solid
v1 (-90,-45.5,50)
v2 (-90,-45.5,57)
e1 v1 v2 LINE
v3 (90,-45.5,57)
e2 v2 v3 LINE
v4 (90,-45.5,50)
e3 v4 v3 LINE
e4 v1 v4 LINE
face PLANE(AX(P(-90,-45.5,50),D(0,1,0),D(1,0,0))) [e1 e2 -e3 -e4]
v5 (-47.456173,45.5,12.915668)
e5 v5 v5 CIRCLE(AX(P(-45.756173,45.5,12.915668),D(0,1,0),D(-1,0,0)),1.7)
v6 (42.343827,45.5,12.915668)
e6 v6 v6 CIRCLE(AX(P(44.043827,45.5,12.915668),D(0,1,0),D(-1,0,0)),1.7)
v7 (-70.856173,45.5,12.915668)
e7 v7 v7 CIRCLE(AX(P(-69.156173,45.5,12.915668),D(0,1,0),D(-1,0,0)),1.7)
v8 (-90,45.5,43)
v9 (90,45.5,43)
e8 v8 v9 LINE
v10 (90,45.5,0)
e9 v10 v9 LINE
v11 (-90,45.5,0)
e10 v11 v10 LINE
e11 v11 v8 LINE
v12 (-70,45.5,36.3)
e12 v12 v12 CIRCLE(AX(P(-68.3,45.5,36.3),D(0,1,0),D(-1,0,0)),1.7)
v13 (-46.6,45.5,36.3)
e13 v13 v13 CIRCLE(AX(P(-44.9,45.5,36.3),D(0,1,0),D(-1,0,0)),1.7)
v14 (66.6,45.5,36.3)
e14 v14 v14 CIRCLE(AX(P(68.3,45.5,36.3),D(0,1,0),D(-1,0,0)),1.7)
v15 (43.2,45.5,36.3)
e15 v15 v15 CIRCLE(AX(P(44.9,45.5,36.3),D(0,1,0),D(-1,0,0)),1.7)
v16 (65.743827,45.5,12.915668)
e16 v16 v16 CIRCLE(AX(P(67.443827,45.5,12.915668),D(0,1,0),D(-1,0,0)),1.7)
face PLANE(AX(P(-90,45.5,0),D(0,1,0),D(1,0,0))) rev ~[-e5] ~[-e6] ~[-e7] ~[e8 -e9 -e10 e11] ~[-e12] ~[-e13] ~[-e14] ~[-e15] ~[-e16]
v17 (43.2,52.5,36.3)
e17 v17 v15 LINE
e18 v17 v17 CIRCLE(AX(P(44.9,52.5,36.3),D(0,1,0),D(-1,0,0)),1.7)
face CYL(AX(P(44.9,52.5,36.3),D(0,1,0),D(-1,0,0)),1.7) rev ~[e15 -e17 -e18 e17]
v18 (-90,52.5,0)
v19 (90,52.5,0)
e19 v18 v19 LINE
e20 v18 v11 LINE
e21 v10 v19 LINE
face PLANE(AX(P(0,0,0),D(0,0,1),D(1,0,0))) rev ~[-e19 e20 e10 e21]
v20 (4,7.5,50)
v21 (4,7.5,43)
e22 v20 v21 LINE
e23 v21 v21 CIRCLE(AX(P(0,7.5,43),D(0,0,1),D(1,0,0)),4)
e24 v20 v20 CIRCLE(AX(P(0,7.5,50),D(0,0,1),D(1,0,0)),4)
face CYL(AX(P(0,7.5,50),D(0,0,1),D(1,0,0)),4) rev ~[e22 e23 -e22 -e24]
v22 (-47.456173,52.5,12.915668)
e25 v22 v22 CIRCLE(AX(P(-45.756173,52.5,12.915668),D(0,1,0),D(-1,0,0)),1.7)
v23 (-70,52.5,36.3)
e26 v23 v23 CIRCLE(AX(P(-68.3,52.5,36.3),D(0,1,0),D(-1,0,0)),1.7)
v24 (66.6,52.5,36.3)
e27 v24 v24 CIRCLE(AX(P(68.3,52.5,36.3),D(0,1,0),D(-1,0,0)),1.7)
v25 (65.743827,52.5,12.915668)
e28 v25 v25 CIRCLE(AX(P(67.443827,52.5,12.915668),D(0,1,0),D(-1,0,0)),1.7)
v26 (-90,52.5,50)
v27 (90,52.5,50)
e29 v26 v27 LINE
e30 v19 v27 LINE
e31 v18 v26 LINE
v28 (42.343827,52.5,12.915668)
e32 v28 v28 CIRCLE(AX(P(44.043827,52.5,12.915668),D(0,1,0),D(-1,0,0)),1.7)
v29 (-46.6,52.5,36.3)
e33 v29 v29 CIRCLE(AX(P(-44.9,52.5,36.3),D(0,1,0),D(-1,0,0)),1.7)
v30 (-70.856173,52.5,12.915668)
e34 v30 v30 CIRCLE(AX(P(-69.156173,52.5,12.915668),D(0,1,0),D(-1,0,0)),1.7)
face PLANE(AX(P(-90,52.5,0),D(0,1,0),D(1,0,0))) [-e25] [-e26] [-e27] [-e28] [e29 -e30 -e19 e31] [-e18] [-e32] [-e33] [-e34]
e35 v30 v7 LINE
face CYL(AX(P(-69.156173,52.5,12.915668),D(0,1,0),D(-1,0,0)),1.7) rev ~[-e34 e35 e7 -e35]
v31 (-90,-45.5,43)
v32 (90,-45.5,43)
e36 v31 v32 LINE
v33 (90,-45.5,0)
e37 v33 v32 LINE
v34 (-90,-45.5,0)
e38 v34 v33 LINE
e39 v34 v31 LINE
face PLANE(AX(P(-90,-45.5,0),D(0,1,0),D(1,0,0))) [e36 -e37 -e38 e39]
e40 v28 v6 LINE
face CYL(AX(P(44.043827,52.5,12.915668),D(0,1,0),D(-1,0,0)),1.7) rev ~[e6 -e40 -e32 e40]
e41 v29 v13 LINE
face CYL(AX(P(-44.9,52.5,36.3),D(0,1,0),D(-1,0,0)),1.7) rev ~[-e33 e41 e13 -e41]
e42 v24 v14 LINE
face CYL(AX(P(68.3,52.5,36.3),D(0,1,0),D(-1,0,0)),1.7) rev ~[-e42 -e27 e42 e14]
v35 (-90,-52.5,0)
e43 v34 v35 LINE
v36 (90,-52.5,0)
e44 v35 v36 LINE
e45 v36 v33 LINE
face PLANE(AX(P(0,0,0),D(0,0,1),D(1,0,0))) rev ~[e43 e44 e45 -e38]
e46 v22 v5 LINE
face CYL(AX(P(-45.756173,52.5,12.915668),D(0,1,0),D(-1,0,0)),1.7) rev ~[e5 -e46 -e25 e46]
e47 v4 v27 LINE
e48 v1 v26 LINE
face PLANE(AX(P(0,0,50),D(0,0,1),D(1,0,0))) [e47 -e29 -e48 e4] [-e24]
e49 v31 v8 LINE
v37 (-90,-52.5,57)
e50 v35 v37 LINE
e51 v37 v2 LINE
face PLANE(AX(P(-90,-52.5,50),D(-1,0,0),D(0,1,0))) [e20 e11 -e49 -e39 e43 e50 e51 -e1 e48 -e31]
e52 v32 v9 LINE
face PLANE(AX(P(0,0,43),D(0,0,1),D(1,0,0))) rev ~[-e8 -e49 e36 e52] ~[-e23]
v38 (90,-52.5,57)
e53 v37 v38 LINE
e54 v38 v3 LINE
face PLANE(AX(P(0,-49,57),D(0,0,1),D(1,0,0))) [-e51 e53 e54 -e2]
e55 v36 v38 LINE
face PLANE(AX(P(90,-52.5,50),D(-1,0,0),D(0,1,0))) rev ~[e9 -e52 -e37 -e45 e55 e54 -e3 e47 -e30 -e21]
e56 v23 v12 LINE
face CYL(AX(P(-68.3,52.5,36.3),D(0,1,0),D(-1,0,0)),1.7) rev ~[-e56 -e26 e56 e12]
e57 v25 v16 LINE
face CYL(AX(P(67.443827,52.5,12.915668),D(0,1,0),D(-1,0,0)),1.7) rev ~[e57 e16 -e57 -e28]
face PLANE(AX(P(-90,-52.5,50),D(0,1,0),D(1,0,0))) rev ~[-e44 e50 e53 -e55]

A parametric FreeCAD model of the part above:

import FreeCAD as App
import Part
import Sketcher
from FreeCAD import Vector
Q = App.Units.Quantity

doc = App.newDocument("Part")
body = doc.addObject("PartDesign::Body", "Body")

# Sketch on XY plane
sketch1 = body.newObject("Sketcher::SketchObject", "Sketch")
sketch1.AttachmentSupport = (doc.getObject("XY_Plane"), [""])
sketch1.MapMode = "FlatFace"
sketch1.addGeometry([
    Part.LineSegment(Vector(-90, 52, 0), Vector(-90, -52, 0)),
    Part.LineSegment(Vector(-90, -52, 0), Vector(90, -52, 0)),
    Part.LineSegment(Vector(90, -52, 0), Vector(90, 52, 0)),
    Part.LineSegment(Vector(90, 52, 0), Vector(-90, 52, 0)),
], False)
sketch1.addConstraint([
    Sketcher.Constraint("Coincident", 0, 2, 1, 1),
    Sketcher.Constraint("Coincident", 1, 2, 2, 1),
    Sketcher.Constraint("Coincident", 2, 2, 3, 1),
    Sketcher.Constraint("Coincident", 3, 2, 0, 1),
    Sketcher.Constraint("Vertical", 0),
    Sketcher.Constraint("Horizontal", 1),
    Sketcher.Constraint("Vertical", 2),
    Sketcher.Constraint("Horizontal", 3),
    Sketcher.Constraint("Symmetric", 0, 2, 2, 2, -1, 1),
    Sketcher.Constraint("DistanceX", 1, 1, 1, 2, Q("180 mm")),
    Sketcher.Constraint("DistanceY", 0, 2, 0, 1, Q("105 mm")),
])
pad1 = body.newObject("PartDesign::Pad", "Pad")
pad1.Profile = sketch1
pad1.Length = 50

# Sketch on XY plane
sketch2 = body.newObject("Sketcher::SketchObject", "Sketch001")
sketch2.AttachmentSupport = (doc.getObject("XY_Plane"), [""])
sketch2.MapMode = "FlatFace"
sketch2.addGeometry([
    Part.LineSegment(Vector(-90, 46, 0), Vector(-90, -46, 0)),
    Part.LineSegment(Vector(-90, -46, 0), Vector(90, -46, 0)),
    Part.LineSegment(Vector(90, -46, 0), Vector(90, 46, 0)),
    Part.LineSegment(Vector(90, 46, 0), Vector(-90, 46, 0)),
], False)
sketch2.addConstraint([
    Sketcher.Constraint("Coincident", 0, 2, 1, 1),
    Sketcher.Constraint("Coincident", 1, 2, 2, 1),
    Sketcher.Constraint("Coincident", 2, 2, 3, 1),
    Sketcher.Constraint("Coincident", 3, 2, 0, 1),
    Sketcher.Constraint("Vertical", 0),
    Sketcher.Constraint("Horizontal", 1),
    Sketcher.Constraint("Vertical", 2),
    Sketcher.Constraint("Horizontal", 3),
    Sketcher.Constraint("Symmetric", 0, 2, 2, 2, -1, 1),
    Sketcher.Constraint("DistanceX", 1, 1, 1, 2, Q("180 mm")),
    Sketcher.Constraint("DistanceY", 0, 2, 0, 1, Q("91 mm")),
])
pocket1 = body.newObject("PartDesign::Pocket", "Pocket")
pocket1.Profile = sketch2
pocket1.Type = "TwoLengths"
pocket1.Length = 1
pocket1.Length2 = 43

# Sketch on XY plane
sketch3 = body.newObject("Sketcher::SketchObject", "Sketch002")
sketch3.AttachmentSupport = (doc.getObject("XY_Plane"), [""])
sketch3.MapMode = "FlatFace"
sketch3.AttachmentOffset = App.Placement(Vector(0, 0, 50), App.Rotation())
sketch3.addGeometry(Part.Circle(Vector(0, 7.5, 0), Vector(0, 0, 1), 4), False)
sketch3.addConstraint([
    Sketcher.Constraint("PointOnObject", 0, 3, -2),
    Sketcher.Constraint("Diameter", 0, Q("8 mm")),
    Sketcher.Constraint("DistanceY", -1, 1, 0, 3, Q("7.5 mm")),
])
pocket2 = body.newObject("PartDesign::Pocket", "Pocket001")
pocket2.Profile = sketch3
pocket2.Type = "ThroughAll"

# Sketch on XY plane
sketch4 = body.newObject("Sketcher::SketchObject", "Sketch003")
sketch4.AttachmentSupport = (doc.getObject("XY_Plane"), [""])
sketch4.MapMode = "FlatFace"
sketch4.AttachmentOffset = App.Placement(Vector(0, 0, 50), App.Rotation())
sketch4.addGeometry([
    Part.LineSegment(Vector(-90, -46, 0), Vector(-90, -52, 0)),
    Part.LineSegment(Vector(-90, -52, 0), Vector(90, -52, 0)),
    Part.LineSegment(Vector(90, -52, 0), Vector(90, -46, 0)),
    Part.LineSegment(Vector(90, -46, 0), Vector(-90, -46, 0)),
], False)
sketch4.addConstraint([
    Sketcher.Constraint("Coincident", 0, 2, 1, 1),
    Sketcher.Constraint("Coincident", 1, 2, 2, 1),
    Sketcher.Constraint("Coincident", 2, 2, 3, 1),
    Sketcher.Constraint("Coincident", 3, 2, 0, 1),
    Sketcher.Constraint("Vertical", 0),
    Sketcher.Constraint("Horizontal", 1),
    Sketcher.Constraint("Vertical", 2),
    Sketcher.Constraint("Horizontal", 3),
    Sketcher.Constraint("DistanceX", 1, 1, 1, 2, Q("180 mm")),
    Sketcher.Constraint("DistanceY", 0, 2, 0, 1, Q("7 mm")),
    Sketcher.Constraint("DistanceX", 0, 2, -1, 1, Q("90 mm")),
    Sketcher.Constraint("DistanceY", 0, 2, -1, 1, Q("52.5 mm")),
])
pad2 = body.newObject("PartDesign::Pad", "Pad001")
pad2.Profile = sketch4
pad2.Length = 7

# Sketch on XZ plane
sketch5 = body.newObject("Sketcher::SketchObject", "Sketch004")
sketch5.AttachmentSupport = (doc.getObject("XZ_Plane"), [""])
sketch5.MapMode = "FlatFace"
sketch5.AttachmentOffset = App.Placement(Vector(0, 0, -52.5), App.Rotation())
sketch5.addGeometry([
    Part.Circle(Vector(68.3, 36.3, 0), Vector(0, 0, 1), 1.7),  # 0
    Part.Circle(Vector(67.4, 12.9, 0), Vector(0, 0, 1), 1.7),  # 1
    Part.Circle(Vector(44.9, 36.3, 0), Vector(0, 0, 1), 1.7),  # 2
    Part.Circle(Vector(44, 12.9, 0), Vector(0, 0, 1), 1.7),  # 3
    Part.Circle(Vector(-44.9, 36.3, 0), Vector(0, 0, 1), 1.7),  # 4
    Part.Circle(Vector(-45.8, 12.9, 0), Vector(0, 0, 1), 1.7),  # 5
    Part.Circle(Vector(-68.3, 36.3, 0), Vector(0, 0, 1), 1.7),  # 6
    Part.Circle(Vector(-69.2, 12.9, 0), Vector(0, 0, 1), 1.7),  # 7
], False)
sketch5.addConstraint([
    Sketcher.Constraint("Equal", 0, 1),
    Sketcher.Constraint("Equal", 1, 2),
    Sketcher.Constraint("Equal", 2, 3),
    Sketcher.Constraint("Equal", 3, 4),
    Sketcher.Constraint("Equal", 4, 5),
    Sketcher.Constraint("Equal", 5, 6),
    Sketcher.Constraint("Equal", 6, 7),
    Sketcher.Constraint("Symmetric", 2, 3, 4, 3, -2),
    Sketcher.Constraint("Symmetric", 0, 3, 6, 3, -2),
    Sketcher.Constraint("Horizontal", 0, 3, 2, 3),
    Sketcher.Constraint("Horizontal", 1, 3, 3, 3),
    Sketcher.Constraint("Horizontal", 3, 3, 5, 3),
    Sketcher.Constraint("Horizontal", 5, 3, 7, 3),
    Sketcher.Constraint("Diameter", 0, Q("3.4 mm")),
    Sketcher.Constraint("DistanceX", -1, 1, 0, 3, Q("68.3 mm")),
    Sketcher.Constraint("DistanceY", -1, 1, 0, 3, Q("36.3 mm")),
    Sketcher.Constraint("DistanceX", -1, 1, 2, 3, Q("44.9 mm")),
    Sketcher.Constraint("DistanceX", 3, 3, 1, 3, Q("23.4 mm")),
    Sketcher.Constraint("DistanceX", 5, 3, 3, 3, Q("89.8 mm")),
    Sketcher.Constraint("DistanceX", 7, 3, 5, 3, Q("23.4 mm")),
    Sketcher.Constraint("DistanceY", -1, 1, 1, 3, Q("12.915668 mm")),
    Sketcher.Constraint("DistanceX", -1, 1, 1, 3, Q("67.443827 mm")),
])
pocket3 = body.newObject("PartDesign::Pocket", "Pocket002")
pocket3.Profile = sketch5
pocket3.Length = 7
pocket3.Reversed = True

doc.recompute()
